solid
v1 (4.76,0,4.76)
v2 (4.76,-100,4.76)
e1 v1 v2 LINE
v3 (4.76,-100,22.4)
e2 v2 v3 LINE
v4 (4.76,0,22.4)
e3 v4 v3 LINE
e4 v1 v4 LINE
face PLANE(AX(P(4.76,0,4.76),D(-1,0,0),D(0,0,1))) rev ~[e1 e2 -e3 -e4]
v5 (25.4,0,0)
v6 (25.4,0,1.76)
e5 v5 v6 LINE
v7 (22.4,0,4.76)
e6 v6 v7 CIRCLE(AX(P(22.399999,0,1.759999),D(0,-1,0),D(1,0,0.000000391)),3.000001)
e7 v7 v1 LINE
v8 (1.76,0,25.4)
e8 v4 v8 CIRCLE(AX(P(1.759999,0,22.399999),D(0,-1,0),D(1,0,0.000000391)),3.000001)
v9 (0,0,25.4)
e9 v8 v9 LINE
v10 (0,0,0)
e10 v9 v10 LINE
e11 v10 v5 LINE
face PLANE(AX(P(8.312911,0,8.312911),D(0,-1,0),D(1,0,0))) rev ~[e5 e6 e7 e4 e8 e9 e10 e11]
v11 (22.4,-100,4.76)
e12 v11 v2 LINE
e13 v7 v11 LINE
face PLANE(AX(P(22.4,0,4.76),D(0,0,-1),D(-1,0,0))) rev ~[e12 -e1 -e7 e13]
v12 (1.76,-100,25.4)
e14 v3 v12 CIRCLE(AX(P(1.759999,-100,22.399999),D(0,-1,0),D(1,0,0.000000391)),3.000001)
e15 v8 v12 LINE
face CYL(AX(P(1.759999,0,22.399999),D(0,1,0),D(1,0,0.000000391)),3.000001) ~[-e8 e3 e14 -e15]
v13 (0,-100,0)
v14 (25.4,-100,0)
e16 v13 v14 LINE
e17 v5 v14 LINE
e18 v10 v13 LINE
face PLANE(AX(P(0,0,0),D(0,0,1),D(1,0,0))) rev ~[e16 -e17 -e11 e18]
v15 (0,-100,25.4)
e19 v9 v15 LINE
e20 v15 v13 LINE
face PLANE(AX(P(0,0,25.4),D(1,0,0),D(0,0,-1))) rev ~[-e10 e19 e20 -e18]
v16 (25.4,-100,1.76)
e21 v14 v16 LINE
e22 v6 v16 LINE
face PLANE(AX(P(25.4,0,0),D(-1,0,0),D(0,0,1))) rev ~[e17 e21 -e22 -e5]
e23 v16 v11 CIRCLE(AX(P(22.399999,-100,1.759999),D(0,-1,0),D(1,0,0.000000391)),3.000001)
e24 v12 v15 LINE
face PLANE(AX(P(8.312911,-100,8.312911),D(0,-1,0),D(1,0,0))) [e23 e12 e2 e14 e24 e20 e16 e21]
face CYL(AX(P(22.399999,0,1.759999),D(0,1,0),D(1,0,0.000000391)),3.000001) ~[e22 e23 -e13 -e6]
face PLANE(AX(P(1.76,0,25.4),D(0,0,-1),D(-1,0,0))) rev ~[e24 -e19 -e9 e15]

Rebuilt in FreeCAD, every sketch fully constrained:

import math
import FreeCAD as App
import Part
import Sketcher
from FreeCAD import Vector
Q = App.Units.Quantity

doc = App.newDocument("Part")
body = doc.addObject("PartDesign::Body", "Body")

# Sketch on XZ plane
sketch1 = body.newObject("Sketcher::SketchObject", "Sketch")
sketch1.AttachmentSupport = (doc.getObject("XZ_Plane"), [""])
sketch1.MapMode = "FlatFace"
sketch1.addGeometry(Part.LineSegment(Vector(0, 25.4, 0), Vector(0, 0, 0)), False)
sketch1.addGeometry(Part.LineSegment(Vector(0, 0, 0), Vector(25.4, 0, 0)), False)
sketch1.addGeometry(Part.LineSegment(Vector(25.4, 0, 0), Vector(25.4, 1.76, 0)), False)
sketch1.addGeometry(Part.ArcOfCircle(Part.Circle(Vector(22.399999, 1.759999, 0), Vector(0, 0, 1), 3.000001), math.radians(0.000022), math.radians(89.999978)), False)
sketch1.addGeometry(Part.LineSegment(Vector(22.4, 4.76, 0), Vector(4.76, 4.76, 0)), False)
sketch1.addGeometry(Part.LineSegment(Vector(4.76, 4.76, 0), Vector(4.76, 22.4, 0)), False)
sketch1.addGeometry(Part.ArcOfCircle(Part.Circle(Vector(1.759999, 22.399999, 0), Vector(0, 0, 1), 3.000001), math.radians(0.000022), math.radians(89.999978)), False)
sketch1.addGeometry(Part.LineSegment(Vector(1.76, 25.4, 0), Vector(0, 25.4, 0)), False)
sketch1.addConstraint(Sketcher.Constraint("Coincident", 0, 2, 1, 1))
sketch1.addConstraint(Sketcher.Constraint("Coincident", 1, 2, 2, 1))
sketch1.addConstraint(Sketcher.Constraint("Tangent", 2, 2, 3, 1))
sketch1.addConstraint(Sketcher.Constraint("Tangent", 3, 2, 4, 1))
sketch1.addConstraint(Sketcher.Constraint("Coincident", 4, 2, 5, 1))
sketch1.addConstraint(Sketcher.Constraint("Tangent", 5, 2, 6, 1))
sketch1.addConstraint(Sketcher.Constraint("Tangent", 6, 2, 7, 1))
sketch1.addConstraint(Sketcher.Constraint("Coincident", 7, 2, 0, 1))
sketch1.addConstraint(Sketcher.Constraint("Vertical", 0))
sketch1.addConstraint(Sketcher.Constraint("Horizontal", 1))
sketch1.addConstraint(Sketcher.Constraint("Vertical", 2))
sketch1.addConstraint(Sketcher.Constraint("Horizontal", 4))
sketch1.addConstraint(Sketcher.Constraint("Vertical", 5))
sketch1.addConstraint(Sketcher.Constraint("Horizontal", 7))
sketch1.addConstraint(Sketcher.Constraint("Coincident", 0, 2, -1, 1))
sketch1.addConstraint(Sketcher.Constraint("Equal", 3, 6))
sketch1.addConstraint(Sketcher.Constraint("Equal", 1, 0))
sketch1.addConstraint(Sketcher.Constraint("Equal", 7, 2))
sketch1.addConstraint(Sketcher.Constraint("Radius", 3, Q("3.000001 mm")))
sketch1.addConstraint(Sketcher.Constraint("DistanceX", 1, 1, 1, 2, Q("25.4 mm")))
sketch1.addConstraint(Sketcher.Constraint("DistanceX", 4, 2, 4, 1, Q("17.64 mm")))
pad1 = body.newObject("PartDesign::Pad", "Pad")
pad1.Profile = sketch1
pad1.Length = 100

doc.recompute()
